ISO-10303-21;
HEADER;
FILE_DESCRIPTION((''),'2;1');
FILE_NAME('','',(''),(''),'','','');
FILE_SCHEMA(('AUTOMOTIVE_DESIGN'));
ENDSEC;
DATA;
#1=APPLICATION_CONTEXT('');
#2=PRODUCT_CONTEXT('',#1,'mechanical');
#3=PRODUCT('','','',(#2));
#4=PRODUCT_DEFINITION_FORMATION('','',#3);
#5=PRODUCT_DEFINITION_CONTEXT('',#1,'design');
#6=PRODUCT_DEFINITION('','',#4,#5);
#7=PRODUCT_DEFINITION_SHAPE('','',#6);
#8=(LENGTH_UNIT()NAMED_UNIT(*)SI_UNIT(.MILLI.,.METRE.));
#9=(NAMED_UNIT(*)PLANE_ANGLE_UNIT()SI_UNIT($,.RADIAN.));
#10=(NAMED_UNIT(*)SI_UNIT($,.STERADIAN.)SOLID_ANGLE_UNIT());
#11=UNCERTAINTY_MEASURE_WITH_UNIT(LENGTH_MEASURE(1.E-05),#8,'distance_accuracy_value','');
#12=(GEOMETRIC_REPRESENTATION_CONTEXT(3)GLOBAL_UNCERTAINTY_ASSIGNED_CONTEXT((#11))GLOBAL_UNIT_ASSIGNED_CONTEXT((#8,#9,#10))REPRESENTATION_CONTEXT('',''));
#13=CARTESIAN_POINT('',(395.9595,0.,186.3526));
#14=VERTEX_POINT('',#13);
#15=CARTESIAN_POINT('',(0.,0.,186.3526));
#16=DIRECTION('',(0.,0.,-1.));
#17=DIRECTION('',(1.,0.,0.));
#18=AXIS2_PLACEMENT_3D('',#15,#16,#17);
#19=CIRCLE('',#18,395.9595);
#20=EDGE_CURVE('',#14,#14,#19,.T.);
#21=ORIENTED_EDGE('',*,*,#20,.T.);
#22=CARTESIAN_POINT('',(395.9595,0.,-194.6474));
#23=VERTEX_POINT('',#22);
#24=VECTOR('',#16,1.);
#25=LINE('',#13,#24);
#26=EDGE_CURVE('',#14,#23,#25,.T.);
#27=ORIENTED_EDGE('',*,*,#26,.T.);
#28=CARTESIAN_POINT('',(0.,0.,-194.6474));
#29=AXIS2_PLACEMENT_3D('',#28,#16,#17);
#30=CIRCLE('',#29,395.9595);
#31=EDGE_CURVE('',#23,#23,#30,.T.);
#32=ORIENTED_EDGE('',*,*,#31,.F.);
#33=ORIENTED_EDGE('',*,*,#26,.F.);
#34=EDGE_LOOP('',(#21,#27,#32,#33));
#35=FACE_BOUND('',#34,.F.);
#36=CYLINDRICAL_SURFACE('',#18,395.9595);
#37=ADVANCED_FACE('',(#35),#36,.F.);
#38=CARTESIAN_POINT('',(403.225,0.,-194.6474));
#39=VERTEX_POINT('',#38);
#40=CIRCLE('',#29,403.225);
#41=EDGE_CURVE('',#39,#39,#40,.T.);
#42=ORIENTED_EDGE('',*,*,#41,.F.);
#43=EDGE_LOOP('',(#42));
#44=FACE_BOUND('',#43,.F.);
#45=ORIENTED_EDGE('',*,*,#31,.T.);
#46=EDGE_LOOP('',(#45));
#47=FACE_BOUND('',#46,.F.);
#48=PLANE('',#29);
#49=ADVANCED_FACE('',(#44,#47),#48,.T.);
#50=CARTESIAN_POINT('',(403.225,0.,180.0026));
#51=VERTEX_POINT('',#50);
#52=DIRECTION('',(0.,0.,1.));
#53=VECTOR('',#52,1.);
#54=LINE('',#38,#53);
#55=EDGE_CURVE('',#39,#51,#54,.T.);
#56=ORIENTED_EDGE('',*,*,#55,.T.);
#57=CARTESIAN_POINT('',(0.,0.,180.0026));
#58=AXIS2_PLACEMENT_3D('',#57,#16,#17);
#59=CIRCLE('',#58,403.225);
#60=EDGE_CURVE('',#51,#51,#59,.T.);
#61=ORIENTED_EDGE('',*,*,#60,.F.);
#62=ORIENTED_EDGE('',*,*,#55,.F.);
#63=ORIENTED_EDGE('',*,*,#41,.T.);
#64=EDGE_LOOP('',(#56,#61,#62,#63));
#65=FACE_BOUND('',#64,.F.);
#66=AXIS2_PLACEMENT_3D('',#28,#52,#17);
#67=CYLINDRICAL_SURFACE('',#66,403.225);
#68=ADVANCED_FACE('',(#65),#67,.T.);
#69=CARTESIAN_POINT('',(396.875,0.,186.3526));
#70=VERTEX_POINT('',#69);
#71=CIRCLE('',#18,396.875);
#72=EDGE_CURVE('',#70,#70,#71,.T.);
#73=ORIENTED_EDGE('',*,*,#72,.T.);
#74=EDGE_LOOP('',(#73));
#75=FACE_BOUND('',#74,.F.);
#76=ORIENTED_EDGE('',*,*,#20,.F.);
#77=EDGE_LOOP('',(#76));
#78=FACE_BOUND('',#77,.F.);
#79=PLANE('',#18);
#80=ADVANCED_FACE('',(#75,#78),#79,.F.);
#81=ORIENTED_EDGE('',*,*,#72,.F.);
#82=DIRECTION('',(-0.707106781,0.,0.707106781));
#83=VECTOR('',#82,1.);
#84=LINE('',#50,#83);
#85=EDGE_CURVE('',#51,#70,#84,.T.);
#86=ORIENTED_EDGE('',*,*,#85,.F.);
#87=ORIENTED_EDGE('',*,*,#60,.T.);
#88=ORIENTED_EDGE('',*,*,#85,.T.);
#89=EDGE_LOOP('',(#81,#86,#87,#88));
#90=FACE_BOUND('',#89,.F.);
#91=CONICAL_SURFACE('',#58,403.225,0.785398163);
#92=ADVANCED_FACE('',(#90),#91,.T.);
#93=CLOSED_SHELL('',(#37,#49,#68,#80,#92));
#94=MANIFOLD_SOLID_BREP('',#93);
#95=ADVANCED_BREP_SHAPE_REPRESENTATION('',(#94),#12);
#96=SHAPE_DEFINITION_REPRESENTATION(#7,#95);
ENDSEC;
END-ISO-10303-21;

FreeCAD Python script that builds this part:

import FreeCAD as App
import Part
import Sketcher
Q = App.Units.Quantity


def edges_at(feature, points):
    """Names of the edges that pass closest to the given points."""
    edges = feature.Shape.Edges
    near = lambda p: min(range(len(edges)), key=lambda i: edges[i].distToShape(Part.Vertex(*p))[0])
    return sorted({f"Edge{near(p) + 1}" for p in points})


def add_polygon(sketch, points):
    """Adds a closed chain of lines whose ends are joined by coincident constraints."""
    first, n = sketch.GeometryCount, len(points)
    for a, b in zip(points, points[1:] + points[:1]):
        sketch.addGeometry(Part.LineSegment(App.Vector(*a, 0), App.Vector(*b, 0)), False)
    for i in range(n):
        sketch.addConstraint(Sketcher.Constraint("Coincident", first + i, 2, first + (i + 1) % n, 1))

doc = App.newDocument("Part")
params = doc.addObject("Spreadsheet::Sheet", "Params")
for row, (alias, value) in enumerate([
    ("sketch1_height", "15 in"),
    ("revolution_angle", "360 deg"),
    ("chamfer_size", "0.25 in"),
], start=1):
    params.set(f"A{row}", alias)
    params.set(f"B{row}", "=" + value)
    params.setAlias(f"B{row}", alias)

body = doc.addObject("PartDesign::Body", "Body")

# Sketch on XZ plane
sketch1 = body.newObject("Sketcher::SketchObject", "Sketch")
sketch1.AttachmentSupport = (doc.getObject("XZ_Plane"), [""])
sketch1.MapMode = "FlatFace"
add_polygon(sketch1, [(395.9595, -194.6474), (403.225, -194.6474), (403.225, 186.3526), (395.9595, 186.3526)])  # lines 0-3
sketch1.addConstraint([
    Sketcher.Constraint("Horizontal", 0),
    Sketcher.Constraint("Vertical", 1),
    Sketcher.Constraint("Horizontal", 2),
    Sketcher.Constraint("Vertical", 3),
    Sketcher.Constraint("DistanceY", 1, 1, 1, 2, Q("15 in")),
    Sketcher.Constraint("DistanceX", -1, 1, 0, 2, Q("15.875 in")),
    Sketcher.Constraint("DistanceX", 0, 1, 0, 2, 7.2655),
    Sketcher.Constraint("DistanceY", 0, 2, -1, 1, 194.6474),
])
sketch1.setExpression("Constraints[8]", "Params.sketch1_height")
revolution = body.newObject("PartDesign::Revolution", "Revolution")
revolution.Profile = sketch1
revolution.ReferenceAxis = (sketch1, ["V_Axis"])
revolution.setExpression("Angle", "Params.revolution_angle")
doc.recompute()

chamfer = body.newObject("PartDesign::Chamfer", "Chamfer")
chamfer.Base = (revolution, edges_at(revolution, [(-403.225, 0, 186.353)]))
chamfer.setExpression("Size", "Params.chamfer_size")

doc.recompute()
